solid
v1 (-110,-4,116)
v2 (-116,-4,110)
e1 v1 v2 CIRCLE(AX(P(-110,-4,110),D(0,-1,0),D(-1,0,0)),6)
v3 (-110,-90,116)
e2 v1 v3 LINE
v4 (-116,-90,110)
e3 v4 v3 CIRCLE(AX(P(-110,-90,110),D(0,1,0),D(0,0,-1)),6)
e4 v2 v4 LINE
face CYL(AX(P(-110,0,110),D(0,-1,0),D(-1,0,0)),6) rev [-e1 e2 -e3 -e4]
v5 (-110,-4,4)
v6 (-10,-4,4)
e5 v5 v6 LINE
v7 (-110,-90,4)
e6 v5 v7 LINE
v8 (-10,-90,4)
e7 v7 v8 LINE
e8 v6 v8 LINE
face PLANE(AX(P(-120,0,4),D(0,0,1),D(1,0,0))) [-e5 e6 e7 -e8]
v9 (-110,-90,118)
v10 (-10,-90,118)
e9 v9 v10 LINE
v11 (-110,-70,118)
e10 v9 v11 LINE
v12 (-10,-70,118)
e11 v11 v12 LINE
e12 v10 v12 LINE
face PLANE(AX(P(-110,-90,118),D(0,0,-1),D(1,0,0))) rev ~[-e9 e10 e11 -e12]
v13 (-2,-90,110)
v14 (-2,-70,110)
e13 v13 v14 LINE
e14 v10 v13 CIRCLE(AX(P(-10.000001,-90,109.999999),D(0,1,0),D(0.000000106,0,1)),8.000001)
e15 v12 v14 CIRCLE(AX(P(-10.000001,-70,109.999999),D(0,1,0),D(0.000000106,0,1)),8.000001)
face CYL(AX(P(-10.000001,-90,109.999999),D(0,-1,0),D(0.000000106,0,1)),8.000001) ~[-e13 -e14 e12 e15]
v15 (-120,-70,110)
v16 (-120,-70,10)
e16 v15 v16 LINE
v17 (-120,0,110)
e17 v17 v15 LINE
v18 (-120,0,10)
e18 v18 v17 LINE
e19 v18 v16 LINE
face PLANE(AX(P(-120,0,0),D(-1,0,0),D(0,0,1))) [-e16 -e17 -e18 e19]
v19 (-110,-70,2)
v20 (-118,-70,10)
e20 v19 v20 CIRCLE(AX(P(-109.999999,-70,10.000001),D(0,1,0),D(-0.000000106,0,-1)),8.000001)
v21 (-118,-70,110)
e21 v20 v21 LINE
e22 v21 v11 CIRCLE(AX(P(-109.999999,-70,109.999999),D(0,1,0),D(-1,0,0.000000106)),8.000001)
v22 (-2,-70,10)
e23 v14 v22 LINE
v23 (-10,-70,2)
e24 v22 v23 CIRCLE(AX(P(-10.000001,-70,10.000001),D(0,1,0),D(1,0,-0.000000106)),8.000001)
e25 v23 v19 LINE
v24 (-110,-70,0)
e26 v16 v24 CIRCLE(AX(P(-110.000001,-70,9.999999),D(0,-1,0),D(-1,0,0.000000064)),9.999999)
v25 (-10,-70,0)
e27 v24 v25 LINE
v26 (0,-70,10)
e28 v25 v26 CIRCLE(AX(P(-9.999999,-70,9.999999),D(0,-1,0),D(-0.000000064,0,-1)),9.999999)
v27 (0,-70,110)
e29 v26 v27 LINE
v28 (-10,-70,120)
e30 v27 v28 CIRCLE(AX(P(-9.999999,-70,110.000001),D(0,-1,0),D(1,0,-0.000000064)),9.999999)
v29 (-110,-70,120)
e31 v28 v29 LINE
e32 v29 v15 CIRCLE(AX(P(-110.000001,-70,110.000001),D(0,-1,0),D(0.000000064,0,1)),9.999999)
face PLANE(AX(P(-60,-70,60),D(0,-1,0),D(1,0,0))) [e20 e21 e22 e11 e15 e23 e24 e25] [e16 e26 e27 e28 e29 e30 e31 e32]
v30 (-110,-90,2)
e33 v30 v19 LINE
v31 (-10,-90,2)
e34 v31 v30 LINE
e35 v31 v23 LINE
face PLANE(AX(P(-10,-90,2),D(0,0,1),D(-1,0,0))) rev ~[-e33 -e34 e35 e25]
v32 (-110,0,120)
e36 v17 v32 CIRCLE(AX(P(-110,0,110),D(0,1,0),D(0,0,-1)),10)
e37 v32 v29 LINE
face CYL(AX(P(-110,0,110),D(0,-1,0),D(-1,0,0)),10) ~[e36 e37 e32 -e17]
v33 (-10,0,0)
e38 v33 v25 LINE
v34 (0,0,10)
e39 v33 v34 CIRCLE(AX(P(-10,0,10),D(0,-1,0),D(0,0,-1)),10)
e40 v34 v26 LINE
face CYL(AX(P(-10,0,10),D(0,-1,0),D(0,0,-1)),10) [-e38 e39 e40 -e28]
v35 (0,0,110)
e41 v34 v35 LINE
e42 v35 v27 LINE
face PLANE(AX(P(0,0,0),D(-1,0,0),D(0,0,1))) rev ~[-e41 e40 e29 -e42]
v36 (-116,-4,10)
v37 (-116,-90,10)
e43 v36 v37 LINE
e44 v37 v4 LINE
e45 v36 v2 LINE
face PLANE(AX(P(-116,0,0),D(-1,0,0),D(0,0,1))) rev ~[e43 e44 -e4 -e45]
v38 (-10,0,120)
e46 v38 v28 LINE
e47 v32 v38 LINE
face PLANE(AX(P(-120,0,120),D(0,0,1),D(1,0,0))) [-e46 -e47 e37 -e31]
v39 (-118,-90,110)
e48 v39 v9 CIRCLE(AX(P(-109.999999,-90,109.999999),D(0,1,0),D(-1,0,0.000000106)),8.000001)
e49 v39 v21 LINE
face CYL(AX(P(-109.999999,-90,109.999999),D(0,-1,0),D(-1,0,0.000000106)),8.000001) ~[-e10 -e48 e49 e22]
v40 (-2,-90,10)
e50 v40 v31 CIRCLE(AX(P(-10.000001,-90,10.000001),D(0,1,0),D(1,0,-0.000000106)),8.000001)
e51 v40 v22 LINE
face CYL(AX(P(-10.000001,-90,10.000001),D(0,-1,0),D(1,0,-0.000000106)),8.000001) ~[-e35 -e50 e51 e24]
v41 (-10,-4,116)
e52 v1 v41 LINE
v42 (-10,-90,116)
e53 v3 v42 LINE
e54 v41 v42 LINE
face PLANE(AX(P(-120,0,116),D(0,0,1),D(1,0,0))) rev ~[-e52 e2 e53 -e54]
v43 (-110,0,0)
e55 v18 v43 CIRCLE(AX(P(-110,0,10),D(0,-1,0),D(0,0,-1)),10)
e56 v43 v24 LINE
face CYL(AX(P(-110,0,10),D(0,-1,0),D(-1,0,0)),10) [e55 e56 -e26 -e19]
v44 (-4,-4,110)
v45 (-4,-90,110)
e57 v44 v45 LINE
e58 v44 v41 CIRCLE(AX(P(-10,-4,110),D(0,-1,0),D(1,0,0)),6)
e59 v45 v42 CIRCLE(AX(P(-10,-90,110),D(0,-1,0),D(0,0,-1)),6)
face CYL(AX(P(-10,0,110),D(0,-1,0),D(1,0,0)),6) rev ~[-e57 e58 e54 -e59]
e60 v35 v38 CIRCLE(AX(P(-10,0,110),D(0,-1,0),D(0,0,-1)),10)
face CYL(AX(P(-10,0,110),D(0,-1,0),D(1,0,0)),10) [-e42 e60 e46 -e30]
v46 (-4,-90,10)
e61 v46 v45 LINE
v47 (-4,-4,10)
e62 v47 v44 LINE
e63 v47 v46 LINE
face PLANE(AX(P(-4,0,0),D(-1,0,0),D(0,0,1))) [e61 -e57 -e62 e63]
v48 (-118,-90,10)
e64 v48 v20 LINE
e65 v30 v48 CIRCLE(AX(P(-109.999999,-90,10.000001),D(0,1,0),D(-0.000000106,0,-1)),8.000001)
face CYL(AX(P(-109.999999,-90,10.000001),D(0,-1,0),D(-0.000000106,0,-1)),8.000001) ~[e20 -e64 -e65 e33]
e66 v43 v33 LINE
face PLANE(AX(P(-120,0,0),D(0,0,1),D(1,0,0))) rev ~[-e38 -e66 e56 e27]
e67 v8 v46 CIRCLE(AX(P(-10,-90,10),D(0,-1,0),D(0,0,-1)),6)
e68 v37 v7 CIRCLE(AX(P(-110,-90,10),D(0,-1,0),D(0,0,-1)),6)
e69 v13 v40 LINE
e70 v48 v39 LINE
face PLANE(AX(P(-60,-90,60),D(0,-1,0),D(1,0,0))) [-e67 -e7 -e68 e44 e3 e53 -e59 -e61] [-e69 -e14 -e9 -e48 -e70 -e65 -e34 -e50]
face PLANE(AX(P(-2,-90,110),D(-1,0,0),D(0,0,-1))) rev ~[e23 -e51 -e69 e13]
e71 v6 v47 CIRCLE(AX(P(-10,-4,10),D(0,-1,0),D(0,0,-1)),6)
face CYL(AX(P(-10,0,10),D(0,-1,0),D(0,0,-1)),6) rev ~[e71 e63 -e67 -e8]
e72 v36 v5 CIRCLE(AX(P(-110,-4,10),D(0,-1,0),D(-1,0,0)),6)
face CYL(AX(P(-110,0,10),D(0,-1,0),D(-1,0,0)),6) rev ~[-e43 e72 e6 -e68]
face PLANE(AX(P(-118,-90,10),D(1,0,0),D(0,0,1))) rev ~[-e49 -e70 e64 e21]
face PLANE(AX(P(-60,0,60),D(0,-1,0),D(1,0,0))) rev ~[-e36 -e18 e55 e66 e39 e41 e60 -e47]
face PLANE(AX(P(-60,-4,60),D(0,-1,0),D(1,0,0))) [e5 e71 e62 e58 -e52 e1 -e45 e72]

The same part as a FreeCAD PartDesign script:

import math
import FreeCAD as App
import Part
import Sketcher


def edges_at(feature, points):
    """Names of the edges that pass closest to the given points."""
    edges = feature.Shape.Edges
    near = lambda p: min(range(len(edges)), key=lambda i: edges[i].distToShape(Part.Vertex(*p))[0])
    return sorted({f"Edge{near(p) + 1}" for p in points})


def faces_at(feature, points):
    """Names of the faces that lie closest to the given points."""
    faces = feature.Shape.Faces
    near = lambda p: min(range(len(faces)), key=lambda i: faces[i].distToShape(Part.Vertex(*p))[0])
    return sorted({f"Face{near(p) + 1}" for p in points})

doc = App.newDocument("Part")
body = doc.addObject("PartDesign::Body", "Body")

sketch1 = body.newObject("Sketcher::SketchObject", "Sketch")
sketch1.AttachmentSupport = (doc.getObject("XZ_Plane"), [""])
sketch1.MapMode = "FlatFace"
sketch1.addGeometry(Part.LineSegment(App.Vector(-120, 120, 0), App.Vector(-120, 0, 0)), False)
sketch1.addGeometry(Part.LineSegment(App.Vector(-120, 0, 0), App.Vector(0, 0, 0)), False)
sketch1.addGeometry(Part.LineSegment(App.Vector(0, 0, 0), App.Vector(0, 120, 0)), False)
sketch1.addGeometry(Part.LineSegment(App.Vector(0, 120, 0), App.Vector(-120, 120, 0)), False)
sketch1.addConstraint(Sketcher.Constraint("Coincident", 0, 2, 1, 1))
sketch1.addConstraint(Sketcher.Constraint("Coincident", 1, 2, 2, 1))
sketch1.addConstraint(Sketcher.Constraint("Coincident", 2, 2, 3, 1))
sketch1.addConstraint(Sketcher.Constraint("Coincident", 3, 2, 0, 1))
sketch1.addConstraint(Sketcher.Constraint("Vertical", 0))
sketch1.addConstraint(Sketcher.Constraint("Horizontal", 1))
sketch1.addConstraint(Sketcher.Constraint("Vertical", 2))
sketch1.addConstraint(Sketcher.Constraint("Horizontal", 3))
sketch1.addConstraint(Sketcher.Constraint("Coincident", 1, 2, -1, 1))
sketch1.addConstraint(Sketcher.Constraint("Equal", 3, 0))
sketch1.addConstraint(Sketcher.Constraint("DistanceX", 1, 1, 1, 2, 120.0))
pad1 = body.newObject("PartDesign::Pad", "Pad")
pad1.Profile = sketch1
pad1.Length = 90
doc.recompute()

fillet = body.newObject("PartDesign::Fillet", "Fillet")
fillet.Base = (pad1, edges_at(pad1, [
    (0, -45, 120),
    (-120, -45, 120),
    (0, -45, 0),
    (-120, -45, 0),
]))
fillet.Radius = 10
doc.recompute()

thickness = body.newObject("PartDesign::Thickness", "Thickness")
thickness.Base = (fillet, faces_at(fillet, [(-60, -90, 60)]))
thickness.Value = 4
thickness.Reversed = True
thickness.Join = "Arc"

sketch2 = body.newObject("Sketcher::SketchObject", "Sketch001")
sketch2.AttachmentSupport = (doc.getObject("XZ_Plane"), [""])
sketch2.MapMode = "FlatFace"
sketch2.AttachmentOffset = App.Placement(App.Vector(0, 0, 90), App.Rotation())
sketch2.addGeometry(Part.LineSegment(App.Vector(-120, 110, 0), App.Vector(-120, 10, 0)), False)
sketch2.addGeometry(Part.ArcOfCircle(Part.Circle(App.Vector(-110, 10, 0), App.Vector(0, 0, 1), 10), math.radians(180), math.radians(270)), False)
sketch2.addGeometry(Part.LineSegment(App.Vector(-110, 0, 0), App.Vector(-10, 0, 0)), False)
sketch2.addGeometry(Part.ArcOfCircle(Part.Circle(App.Vector(-10, 10, 0), App.Vector(0, 0, 1), 10), math.radians(-90), math.radians(0)), False)
sketch2.addGeometry(Part.LineSegment(App.Vector(0, 10, 0), App.Vector(0, 110, 0)), False)
sketch2.addGeometry(Part.ArcOfCircle(Part.Circle(App.Vector(-10, 110, 0), App.Vector(0, 0, 1), 10), math.radians(0), math.radians(90)), False)
sketch2.addGeometry(Part.LineSegment(App.Vector(-10, 120, 0), App.Vector(-110, 120, 0)), False)
sketch2.addGeometry(Part.ArcOfCircle(Part.Circle(App.Vector(-110, 110, 0), App.Vector(0, 0, 1), 10), math.radians(90), math.radians(180)), False)
sketch2.addGeometry(Part.LineSegment(App.Vector(-10, 2, 0), App.Vector(-110, 2, 0)), False)
sketch2.addGeometry(Part.ArcOfCircle(Part.Circle(App.Vector(-110, 10, 0), App.Vector(0, 0, 1), 8), math.radians(-180), math.radians(-90)), False)
sketch2.addGeometry(Part.LineSegment(App.Vector(-118, 10, 0), App.Vector(-118, 110, 0)), False)
sketch2.addGeometry(Part.ArcOfCircle(Part.Circle(App.Vector(-110, 110, 0), App.Vector(0, 0, 1), 8), math.radians(90), math.radians(180)), False)
sketch2.addGeometry(Part.LineSegment(App.Vector(-110, 118, 0), App.Vector(-10, 118, 0)), False)
sketch2.addGeometry(Part.ArcOfCircle(Part.Circle(App.Vector(-10, 110, 0), App.Vector(0, 0, 1), 8), math.radians(0), math.radians(90)), False)
sketch2.addGeometry(Part.LineSegment(App.Vector(-2, 110, 0), App.Vector(-2, 10, 0)), False)
sketch2.addGeometry(Part.ArcOfCircle(Part.Circle(App.Vector(-10, 10, 0), App.Vector(0, 0, 1), 8), math.radians(-90), math.radians(0)), False)
sketch2.addConstraint(Sketcher.Constraint("Tangent", 0, 2, 1, 1))
sketch2.addConstraint(Sketcher.Constraint("Tangent", 1, 2, 2, 1))
sketch2.addConstraint(Sketcher.Constraint("Tangent", 2, 2, 3, 1))
sketch2.addConstraint(Sketcher.Constraint("Tangent", 3, 2, 4, 1))
sketch2.addConstraint(Sketcher.Constraint("Tangent", 4, 2, 5, 1))
sketch2.addConstraint(Sketcher.Constraint("Tangent", 5, 2, 6, 1))
sketch2.addConstraint(Sketcher.Constraint("Tangent", 6, 2, 7, 1))
sketch2.addConstraint(Sketcher.Constraint("Tangent", 7, 2, 0, 1))
sketch2.addConstraint(Sketcher.Constraint("Tangent", 8, 2, 9, 2))
sketch2.addConstraint(Sketcher.Constraint("Tangent", 9, 1, 10, 1))
sketch2.addConstraint(Sketcher.Constraint("Tangent", 10, 2, 11, 2))
sketch2.addConstraint(Sketcher.Constraint("Tangent", 11, 1, 12, 1))
sketch2.addConstraint(Sketcher.Constraint("Tangent", 12, 2, 13, 2))
sketch2.addConstraint(Sketcher.Constraint("Tangent", 13, 1, 14, 1))
sketch2.addConstraint(Sketcher.Constraint("Tangent", 14, 2, 15, 2))
sketch2.addConstraint(Sketcher.Constraint("Tangent", 15, 1, 8, 1))
sketch2.addConstraint(Sketcher.Constraint("Vertical", 0))
sketch2.addConstraint(Sketcher.Constraint("Horizontal", 2))
sketch2.addConstraint(Sketcher.Constraint("Vertical", 4))
sketch2.addConstraint(Sketcher.Constraint("Horizontal", 6))
sketch2.addConstraint(Sketcher.Constraint("Horizontal", 8))
sketch2.addConstraint(Sketcher.Constraint("Vertical", 10))
sketch2.addConstraint(Sketcher.Constraint("Horizontal", 12))
sketch2.addConstraint(Sketcher.Constraint("Vertical", 14))
sketch2.addConstraint(Sketcher.Constraint("Coincident", 9, 3, 1, 3))
sketch2.addConstraint(Sketcher.Constraint("Coincident", 11, 3, 7, 3))
sketch2.addConstraint(Sketcher.Constraint("Coincident", 13, 3, 5, 3))
sketch2.addConstraint(Sketcher.Constraint("Equal", 1, 3))
sketch2.addConstraint(Sketcher.Constraint("Equal", 3, 5))
sketch2.addConstraint(Sketcher.Constraint("Equal", 5, 7))
sketch2.addConstraint(Sketcher.Constraint("Equal", 13, 15))
sketch2.addConstraint(Sketcher.Constraint("PointOnObject", 1, 2, -1))
sketch2.addConstraint(Sketcher.Constraint("PointOnObject", 3, 2, -2))
sketch2.addConstraint(Sketcher.Constraint("Equal", 12, 0))
sketch2.addConstraint(Sketcher.Constraint("Radius", 1, 9.999999))
sketch2.addConstraint(Sketcher.Constraint("Radius", 9, 8.000001))
sketch2.addConstraint(Sketcher.Constraint("DistanceX", 2, 1, 2, 2, 100.0))
pocket1 = body.newObject("PartDesign::Pocket", "Pocket")
pocket1.Profile = sketch2
pocket1.Length = 20

doc.recompute()
